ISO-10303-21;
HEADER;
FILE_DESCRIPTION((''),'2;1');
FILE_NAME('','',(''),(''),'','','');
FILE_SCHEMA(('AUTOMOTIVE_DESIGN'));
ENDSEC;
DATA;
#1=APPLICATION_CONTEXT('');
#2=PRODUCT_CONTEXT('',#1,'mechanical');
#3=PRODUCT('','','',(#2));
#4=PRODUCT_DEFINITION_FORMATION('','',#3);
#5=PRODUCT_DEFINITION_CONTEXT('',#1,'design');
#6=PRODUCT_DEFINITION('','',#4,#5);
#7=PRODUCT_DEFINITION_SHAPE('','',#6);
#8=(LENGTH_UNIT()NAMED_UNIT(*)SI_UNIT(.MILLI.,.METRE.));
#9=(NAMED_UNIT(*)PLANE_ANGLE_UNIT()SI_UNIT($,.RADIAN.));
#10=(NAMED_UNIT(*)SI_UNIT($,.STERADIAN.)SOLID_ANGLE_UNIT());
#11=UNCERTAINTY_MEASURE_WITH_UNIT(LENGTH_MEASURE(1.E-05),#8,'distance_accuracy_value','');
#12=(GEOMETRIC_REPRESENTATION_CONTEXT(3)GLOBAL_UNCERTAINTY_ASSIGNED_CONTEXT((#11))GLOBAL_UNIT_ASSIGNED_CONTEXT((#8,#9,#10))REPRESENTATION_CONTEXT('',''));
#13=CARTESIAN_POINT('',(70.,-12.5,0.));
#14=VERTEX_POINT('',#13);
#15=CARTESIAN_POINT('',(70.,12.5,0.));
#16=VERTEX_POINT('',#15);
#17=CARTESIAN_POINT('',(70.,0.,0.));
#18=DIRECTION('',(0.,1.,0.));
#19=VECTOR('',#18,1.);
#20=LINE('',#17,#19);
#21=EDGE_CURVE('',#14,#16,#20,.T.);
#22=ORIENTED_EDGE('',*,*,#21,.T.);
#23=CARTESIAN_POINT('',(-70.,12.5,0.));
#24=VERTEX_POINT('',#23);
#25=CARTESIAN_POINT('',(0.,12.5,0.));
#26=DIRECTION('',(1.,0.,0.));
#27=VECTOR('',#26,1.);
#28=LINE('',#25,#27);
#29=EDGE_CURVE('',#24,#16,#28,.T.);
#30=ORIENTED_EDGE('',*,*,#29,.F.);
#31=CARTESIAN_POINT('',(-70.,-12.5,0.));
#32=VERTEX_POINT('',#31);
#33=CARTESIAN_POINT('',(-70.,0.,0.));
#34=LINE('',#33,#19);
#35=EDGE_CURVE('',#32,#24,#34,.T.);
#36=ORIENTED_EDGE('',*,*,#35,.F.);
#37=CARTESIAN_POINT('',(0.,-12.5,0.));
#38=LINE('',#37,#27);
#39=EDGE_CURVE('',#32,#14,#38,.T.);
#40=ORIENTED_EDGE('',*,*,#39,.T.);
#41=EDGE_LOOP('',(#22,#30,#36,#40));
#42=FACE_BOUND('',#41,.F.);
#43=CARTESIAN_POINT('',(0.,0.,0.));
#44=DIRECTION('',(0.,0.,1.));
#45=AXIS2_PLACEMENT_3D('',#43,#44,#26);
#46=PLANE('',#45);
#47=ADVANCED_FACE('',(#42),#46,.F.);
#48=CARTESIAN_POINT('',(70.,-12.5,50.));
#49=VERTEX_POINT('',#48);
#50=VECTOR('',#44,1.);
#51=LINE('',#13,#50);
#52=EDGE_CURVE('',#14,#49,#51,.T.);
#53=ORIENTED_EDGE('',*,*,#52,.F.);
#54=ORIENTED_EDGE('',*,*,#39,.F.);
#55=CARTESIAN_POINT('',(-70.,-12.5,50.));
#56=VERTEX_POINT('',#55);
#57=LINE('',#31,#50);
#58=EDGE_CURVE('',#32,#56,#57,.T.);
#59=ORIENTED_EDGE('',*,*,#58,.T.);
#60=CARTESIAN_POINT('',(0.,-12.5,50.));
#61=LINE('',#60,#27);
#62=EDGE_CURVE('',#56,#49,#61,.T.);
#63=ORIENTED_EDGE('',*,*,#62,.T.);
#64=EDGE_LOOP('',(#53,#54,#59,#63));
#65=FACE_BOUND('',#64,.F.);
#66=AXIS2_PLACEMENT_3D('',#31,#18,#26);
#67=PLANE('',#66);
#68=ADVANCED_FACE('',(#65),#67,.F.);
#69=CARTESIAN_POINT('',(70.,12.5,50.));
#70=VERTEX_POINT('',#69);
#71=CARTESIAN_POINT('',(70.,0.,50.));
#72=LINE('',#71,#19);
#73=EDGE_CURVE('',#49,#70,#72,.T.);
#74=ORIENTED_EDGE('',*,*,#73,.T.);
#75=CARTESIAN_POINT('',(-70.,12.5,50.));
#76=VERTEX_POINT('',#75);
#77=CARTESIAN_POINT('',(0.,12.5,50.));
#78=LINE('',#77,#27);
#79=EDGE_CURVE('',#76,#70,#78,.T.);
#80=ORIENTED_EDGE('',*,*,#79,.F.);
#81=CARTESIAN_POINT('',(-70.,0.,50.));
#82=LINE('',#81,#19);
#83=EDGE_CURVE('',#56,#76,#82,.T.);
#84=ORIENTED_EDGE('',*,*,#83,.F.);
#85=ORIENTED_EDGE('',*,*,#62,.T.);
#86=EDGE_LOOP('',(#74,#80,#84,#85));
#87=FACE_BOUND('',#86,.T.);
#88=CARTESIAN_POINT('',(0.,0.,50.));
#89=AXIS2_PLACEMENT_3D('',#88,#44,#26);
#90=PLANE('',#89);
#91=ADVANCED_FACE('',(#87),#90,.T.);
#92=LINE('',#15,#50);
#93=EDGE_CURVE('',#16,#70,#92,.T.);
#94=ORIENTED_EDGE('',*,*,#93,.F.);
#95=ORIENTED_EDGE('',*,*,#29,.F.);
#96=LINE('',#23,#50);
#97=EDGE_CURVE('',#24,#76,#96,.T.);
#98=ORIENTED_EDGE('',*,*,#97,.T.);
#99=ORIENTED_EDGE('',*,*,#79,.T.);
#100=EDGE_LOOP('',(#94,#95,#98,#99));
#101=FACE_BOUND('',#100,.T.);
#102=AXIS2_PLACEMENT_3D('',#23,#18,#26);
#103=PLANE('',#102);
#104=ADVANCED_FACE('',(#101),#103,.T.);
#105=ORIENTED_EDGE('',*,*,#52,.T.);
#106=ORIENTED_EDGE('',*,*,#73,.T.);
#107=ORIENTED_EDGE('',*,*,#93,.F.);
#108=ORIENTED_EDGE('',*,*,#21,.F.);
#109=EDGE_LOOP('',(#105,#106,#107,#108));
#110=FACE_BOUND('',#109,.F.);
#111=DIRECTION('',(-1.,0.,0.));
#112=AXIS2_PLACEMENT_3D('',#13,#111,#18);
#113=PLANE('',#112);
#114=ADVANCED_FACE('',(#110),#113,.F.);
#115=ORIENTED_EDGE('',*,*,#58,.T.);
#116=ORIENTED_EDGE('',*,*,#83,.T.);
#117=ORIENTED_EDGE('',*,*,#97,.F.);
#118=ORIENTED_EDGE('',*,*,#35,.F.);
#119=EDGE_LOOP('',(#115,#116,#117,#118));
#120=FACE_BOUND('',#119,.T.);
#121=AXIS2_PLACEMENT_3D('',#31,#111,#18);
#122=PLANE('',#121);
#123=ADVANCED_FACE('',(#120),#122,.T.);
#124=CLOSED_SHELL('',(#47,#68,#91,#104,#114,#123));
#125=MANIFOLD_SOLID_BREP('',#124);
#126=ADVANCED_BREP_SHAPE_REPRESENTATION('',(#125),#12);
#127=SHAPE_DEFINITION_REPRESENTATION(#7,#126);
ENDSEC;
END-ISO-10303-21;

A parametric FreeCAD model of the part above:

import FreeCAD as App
import Part
import Sketcher
Q = App.Units.Quantity


def add_polygon(sketch, points):
    """Adds a closed chain of lines whose ends are joined by coincident constraints."""
    first, n = sketch.GeometryCount, len(points)
    for a, b in zip(points, points[1:] + points[:1]):
        sketch.addGeometry(Part.LineSegment(App.Vector(*a, 0), App.Vector(*b, 0)), False)
    for i in range(n):
        sketch.addConstraint(Sketcher.Constraint("Coincident", first + i, 2, first + (i + 1) % n, 1))

doc = App.newDocument("Part")
body = doc.addObject("PartDesign::Body", "Body")

sketch1 = body.newObject("Sketcher::SketchObject", "Sketch")
sketch1.AttachmentSupport = (doc.getObject("XY_Plane"), [""])
sketch1.MapMode = "FlatFace"
add_polygon(sketch1, [(-70, 12), (-70, -12), (70, -12), (70, 12)])
sketch1.addConstraint(Sketcher.Constraint("Vertical", 0))
sketch1.addConstraint(Sketcher.Constraint("Horizontal", 1))
sketch1.addConstraint(Sketcher.Constraint("Vertical", 2))
sketch1.addConstraint(Sketcher.Constraint("Horizontal", 3))
sketch1.addConstraint(Sketcher.Constraint("Symmetric", 0, 2, 2, 2, -1, 1))
sketch1.addConstraint(Sketcher.Constraint("DistanceX", 1, 1, 1, 2, Q("140 mm")))
sketch1.addConstraint(Sketcher.Constraint("DistanceY", 0, 2, 0, 1, Q("25 mm")))
pad1 = body.newObject("PartDesign::Pad", "Pad")
pad1.Profile = sketch1
pad1.Length = 50

doc.recompute()
